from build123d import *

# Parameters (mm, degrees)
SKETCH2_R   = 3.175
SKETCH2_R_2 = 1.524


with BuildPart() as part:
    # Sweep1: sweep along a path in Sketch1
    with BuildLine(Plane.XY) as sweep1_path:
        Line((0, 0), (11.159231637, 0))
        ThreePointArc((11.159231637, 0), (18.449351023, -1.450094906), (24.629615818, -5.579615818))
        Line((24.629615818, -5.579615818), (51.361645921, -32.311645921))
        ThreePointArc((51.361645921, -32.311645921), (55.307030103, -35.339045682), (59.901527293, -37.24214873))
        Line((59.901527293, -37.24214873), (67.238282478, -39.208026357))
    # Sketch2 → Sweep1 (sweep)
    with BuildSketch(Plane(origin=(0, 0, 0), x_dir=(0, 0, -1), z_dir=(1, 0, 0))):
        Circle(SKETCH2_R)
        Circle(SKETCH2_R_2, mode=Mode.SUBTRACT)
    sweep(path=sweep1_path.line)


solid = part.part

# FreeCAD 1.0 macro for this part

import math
import FreeCAD as App
import Part
import Sketcher

V = App.Vector
Q = App.Units.Quantity

doc = App.newDocument("Part")
body = doc.addObject("PartDesign::Body", "Body")

sketch1 = doc.addObject("Sketcher::SketchObject", "Sketch")
body.addObject(sketch1)
sketch1.AttachmentSupport = (doc.YZ_Plane, [""])
sketch1.MapMode = "FlatFace"
sketch1.addGeometry(Part.Circle(V(0, 0, 0), V(0, 0, 1), 3.2), False)
sketch1.addGeometry(Part.Circle(V(0, 0, 0), V(0, 0, 1), 1.5), False)
sketch1.addConstraint(Sketcher.Constraint("Coincident", 0, 3, -1, 1))
sketch1.addConstraint(Sketcher.Constraint("Coincident", 1, 3, -1, 1))
sketch1.addConstraint(Sketcher.Constraint("Diameter", 0, Q("0.25 in")))
sketch1.addConstraint(Sketcher.Constraint("Diameter", 1, Q("0.12 in")))

sketch2 = doc.addObject("Sketcher::SketchObject", "Sketch001")
body.addObject(sketch2)
sketch2.AttachmentSupport = (doc.XY_Plane, [""])
sketch2.MapMode = "FlatFace"
sketch2.addGeometry(Part.LineSegment(V(0, 0, 0), V(11, 0, 0)), False)
sketch2.addGeometry(Part.ArcOfCircle(Part.Circle(V(11, -19, 0), V(0, 0, 1), 19), math.radians(45), math.radians(90)), False)
sketch2.addGeometry(Part.LineSegment(V(25, -6, 0), V(51, -32, 0)), False)
sketch2.addGeometry(Part.ArcOfCircle(Part.Circle(V(65, -19, 0), V(0, 0, 1), 19), math.radians(-135), math.radians(-105)), False)
sketch2.addGeometry(Part.LineSegment(V(60, -37, 0), V(67, -39, 0)), False)
sketch2.addConstraint(Sketcher.Constraint("Tangent", 0, 2, 1, 2))
sketch2.addConstraint(Sketcher.Constraint("Tangent", 1, 1, 2, 1))
sketch2.addConstraint(Sketcher.Constraint("Tangent", 2, 2, 3, 1))
sketch2.addConstraint(Sketcher.Constraint("Tangent", 3, 2, 4, 1))
sketch2.addConstraint(Sketcher.Constraint("Horizontal", 0))
sketch2.addConstraint(Sketcher.Constraint("Coincident", 0, 1, -1, 1))
sketch2.addConstraint(Sketcher.Constraint("Equal", 1, 3))
sketch2.addConstraint(Sketcher.Constraint("Radius", 1, Q("0.75 in")))
sketch2.addConstraint(Sketcher.Constraint("Angle", 2, Q("-45 deg")))
sketch2.addConstraint(Sketcher.Constraint("Angle", 4, Q("-15 deg")))
sketch2.addConstraint(Sketcher.Constraint("Distance", 2, Q("37.8048 mm")))
sketch2.addConstraint(Sketcher.Constraint("DistanceX", 0, 1, 0, 2, Q("11.159232 mm")))
sketch2.addConstraint(Sketcher.Constraint("DistanceY", 4, 2, 2, 2, Q("6.89638 mm")))
doc.recompute()

additivepipe = doc.addObject("PartDesign::AdditivePipe", "AdditivePipe")
body.addObject(additivepipe)
additivepipe.Profile = sketch1
additivepipe.Spine = (sketch2, ["Edge1", "Edge2", "Edge3", "Edge4", "Edge5"])

doc.recompute()
